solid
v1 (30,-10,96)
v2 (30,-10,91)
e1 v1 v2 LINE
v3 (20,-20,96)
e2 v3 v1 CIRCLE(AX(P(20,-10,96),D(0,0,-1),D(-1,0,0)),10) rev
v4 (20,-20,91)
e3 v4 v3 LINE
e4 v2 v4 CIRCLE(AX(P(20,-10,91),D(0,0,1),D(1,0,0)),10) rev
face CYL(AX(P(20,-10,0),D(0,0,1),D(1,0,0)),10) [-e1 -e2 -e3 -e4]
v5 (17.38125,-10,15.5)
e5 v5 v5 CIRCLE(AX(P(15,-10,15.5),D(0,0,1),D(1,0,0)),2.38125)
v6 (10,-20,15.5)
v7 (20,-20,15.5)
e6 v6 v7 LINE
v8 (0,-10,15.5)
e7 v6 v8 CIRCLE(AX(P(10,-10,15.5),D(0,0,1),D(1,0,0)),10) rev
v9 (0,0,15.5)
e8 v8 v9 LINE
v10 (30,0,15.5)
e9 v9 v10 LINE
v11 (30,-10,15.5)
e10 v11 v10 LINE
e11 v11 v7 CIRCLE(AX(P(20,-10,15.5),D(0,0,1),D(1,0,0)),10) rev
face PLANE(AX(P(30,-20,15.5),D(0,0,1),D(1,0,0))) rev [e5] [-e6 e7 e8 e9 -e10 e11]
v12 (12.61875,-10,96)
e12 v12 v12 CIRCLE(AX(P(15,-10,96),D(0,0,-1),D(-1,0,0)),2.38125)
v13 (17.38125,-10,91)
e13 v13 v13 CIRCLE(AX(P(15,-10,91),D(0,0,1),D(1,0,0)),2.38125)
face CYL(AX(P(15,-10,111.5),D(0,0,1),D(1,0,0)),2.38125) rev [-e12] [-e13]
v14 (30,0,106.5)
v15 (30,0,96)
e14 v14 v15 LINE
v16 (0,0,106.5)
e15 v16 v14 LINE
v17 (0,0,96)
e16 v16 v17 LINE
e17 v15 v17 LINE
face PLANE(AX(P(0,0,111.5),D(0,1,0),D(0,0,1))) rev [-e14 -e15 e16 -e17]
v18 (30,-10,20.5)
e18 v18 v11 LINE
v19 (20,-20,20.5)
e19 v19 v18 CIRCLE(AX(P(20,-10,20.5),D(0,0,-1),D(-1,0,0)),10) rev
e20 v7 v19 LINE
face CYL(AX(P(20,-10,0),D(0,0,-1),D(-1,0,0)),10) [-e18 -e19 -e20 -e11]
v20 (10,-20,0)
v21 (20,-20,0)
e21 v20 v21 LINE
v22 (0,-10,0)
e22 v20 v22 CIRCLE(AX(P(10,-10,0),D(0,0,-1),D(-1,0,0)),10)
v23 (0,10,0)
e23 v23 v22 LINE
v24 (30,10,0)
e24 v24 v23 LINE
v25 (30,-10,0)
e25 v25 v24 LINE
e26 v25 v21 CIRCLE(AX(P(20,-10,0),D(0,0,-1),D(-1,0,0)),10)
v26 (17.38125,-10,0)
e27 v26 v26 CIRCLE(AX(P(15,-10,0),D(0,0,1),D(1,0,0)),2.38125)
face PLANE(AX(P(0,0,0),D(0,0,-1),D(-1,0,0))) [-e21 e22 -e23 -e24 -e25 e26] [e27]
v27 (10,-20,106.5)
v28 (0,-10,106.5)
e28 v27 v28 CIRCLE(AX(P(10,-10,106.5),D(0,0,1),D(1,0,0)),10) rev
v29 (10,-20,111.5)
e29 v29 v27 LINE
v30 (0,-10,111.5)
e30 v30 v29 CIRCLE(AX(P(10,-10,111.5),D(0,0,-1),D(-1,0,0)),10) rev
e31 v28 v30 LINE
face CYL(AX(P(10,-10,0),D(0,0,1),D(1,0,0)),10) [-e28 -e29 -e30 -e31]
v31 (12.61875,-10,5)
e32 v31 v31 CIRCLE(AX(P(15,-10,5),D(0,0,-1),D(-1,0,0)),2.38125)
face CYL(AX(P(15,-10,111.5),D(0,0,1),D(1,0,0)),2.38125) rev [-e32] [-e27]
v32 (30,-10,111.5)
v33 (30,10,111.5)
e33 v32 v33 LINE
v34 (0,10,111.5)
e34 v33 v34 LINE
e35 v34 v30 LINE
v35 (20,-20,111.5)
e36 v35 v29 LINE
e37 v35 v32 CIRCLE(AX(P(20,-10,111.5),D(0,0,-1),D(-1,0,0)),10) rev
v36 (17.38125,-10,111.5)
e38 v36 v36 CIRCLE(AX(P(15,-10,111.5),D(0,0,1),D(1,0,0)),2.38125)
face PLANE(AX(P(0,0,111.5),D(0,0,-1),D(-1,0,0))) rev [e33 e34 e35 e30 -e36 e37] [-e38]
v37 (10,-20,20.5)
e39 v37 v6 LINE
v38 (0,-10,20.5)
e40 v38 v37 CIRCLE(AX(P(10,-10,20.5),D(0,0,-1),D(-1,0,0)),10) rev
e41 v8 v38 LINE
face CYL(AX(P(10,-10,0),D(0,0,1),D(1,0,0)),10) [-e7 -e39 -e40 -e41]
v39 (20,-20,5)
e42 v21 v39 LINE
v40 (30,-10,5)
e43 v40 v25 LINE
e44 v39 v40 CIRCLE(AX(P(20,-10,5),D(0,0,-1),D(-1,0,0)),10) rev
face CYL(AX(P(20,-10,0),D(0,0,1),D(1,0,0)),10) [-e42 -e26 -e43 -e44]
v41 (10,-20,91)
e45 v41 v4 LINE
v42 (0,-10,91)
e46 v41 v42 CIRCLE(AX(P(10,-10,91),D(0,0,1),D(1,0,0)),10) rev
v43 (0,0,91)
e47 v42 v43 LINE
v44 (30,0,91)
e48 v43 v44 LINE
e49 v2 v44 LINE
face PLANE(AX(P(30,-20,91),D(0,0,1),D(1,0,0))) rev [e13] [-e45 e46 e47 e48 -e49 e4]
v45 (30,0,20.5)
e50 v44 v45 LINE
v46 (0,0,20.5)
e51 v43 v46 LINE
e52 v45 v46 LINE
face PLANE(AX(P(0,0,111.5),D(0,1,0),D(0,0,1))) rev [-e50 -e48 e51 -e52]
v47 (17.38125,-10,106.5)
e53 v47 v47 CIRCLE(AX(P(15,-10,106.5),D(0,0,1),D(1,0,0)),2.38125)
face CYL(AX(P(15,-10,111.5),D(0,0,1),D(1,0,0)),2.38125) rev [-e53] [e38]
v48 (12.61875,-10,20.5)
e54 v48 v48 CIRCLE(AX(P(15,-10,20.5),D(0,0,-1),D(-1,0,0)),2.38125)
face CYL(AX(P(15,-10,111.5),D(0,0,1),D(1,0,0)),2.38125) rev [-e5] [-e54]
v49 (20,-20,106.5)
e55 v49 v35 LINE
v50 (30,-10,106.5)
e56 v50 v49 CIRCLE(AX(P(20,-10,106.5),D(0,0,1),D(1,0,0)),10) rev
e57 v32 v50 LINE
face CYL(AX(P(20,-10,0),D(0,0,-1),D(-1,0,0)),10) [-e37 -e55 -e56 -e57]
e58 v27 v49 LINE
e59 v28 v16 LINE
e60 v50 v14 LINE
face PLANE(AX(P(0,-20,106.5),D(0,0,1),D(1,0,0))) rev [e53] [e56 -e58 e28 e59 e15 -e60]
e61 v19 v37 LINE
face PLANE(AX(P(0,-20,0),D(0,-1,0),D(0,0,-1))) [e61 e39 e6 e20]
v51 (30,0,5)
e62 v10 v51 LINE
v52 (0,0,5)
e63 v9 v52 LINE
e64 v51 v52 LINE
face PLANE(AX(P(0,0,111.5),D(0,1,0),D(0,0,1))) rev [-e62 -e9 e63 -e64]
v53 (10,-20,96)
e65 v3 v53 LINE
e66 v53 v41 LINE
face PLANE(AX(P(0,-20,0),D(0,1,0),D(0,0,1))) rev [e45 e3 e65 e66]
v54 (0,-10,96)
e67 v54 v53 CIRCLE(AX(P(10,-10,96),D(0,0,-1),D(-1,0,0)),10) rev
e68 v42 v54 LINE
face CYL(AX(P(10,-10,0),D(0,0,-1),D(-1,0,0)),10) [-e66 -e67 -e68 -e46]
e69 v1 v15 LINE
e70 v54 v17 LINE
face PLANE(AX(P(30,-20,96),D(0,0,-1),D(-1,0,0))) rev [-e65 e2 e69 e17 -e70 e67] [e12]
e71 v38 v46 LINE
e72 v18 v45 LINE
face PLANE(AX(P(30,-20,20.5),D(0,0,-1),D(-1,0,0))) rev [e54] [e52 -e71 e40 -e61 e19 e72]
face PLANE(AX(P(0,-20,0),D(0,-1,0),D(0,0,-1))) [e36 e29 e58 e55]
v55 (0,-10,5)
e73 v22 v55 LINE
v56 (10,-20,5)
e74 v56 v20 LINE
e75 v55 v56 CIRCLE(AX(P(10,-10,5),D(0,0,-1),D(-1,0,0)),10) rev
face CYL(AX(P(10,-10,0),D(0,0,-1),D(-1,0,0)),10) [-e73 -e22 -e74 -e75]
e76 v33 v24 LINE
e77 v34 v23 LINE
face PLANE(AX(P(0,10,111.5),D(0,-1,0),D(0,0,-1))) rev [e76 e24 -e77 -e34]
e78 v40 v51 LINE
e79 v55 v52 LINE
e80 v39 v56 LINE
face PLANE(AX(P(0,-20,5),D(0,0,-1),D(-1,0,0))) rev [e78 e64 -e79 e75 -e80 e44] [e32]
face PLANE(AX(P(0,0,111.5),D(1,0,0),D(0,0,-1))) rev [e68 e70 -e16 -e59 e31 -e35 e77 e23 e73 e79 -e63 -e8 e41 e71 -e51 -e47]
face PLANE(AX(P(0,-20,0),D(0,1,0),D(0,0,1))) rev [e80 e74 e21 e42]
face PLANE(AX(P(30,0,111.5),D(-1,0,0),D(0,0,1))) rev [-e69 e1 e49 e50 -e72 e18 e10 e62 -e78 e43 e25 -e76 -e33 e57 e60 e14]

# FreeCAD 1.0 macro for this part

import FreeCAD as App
import Part
import Sketcher


def edges_at(feature, points):
    """Names of the edges that pass closest to the given points."""
    edges = feature.Shape.Edges
    near = lambda p: min(range(len(edges)), key=lambda i: edges[i].distToShape(Part.Vertex(*p))[0])
    return sorted({f"Edge{near(p) + 1}" for p in points})


def add_polygon(sketch, points):
    """Adds a closed chain of lines whose ends are joined by coincident constraints."""
    first, n = sketch.GeometryCount, len(points)
    for a, b in zip(points, points[1:] + points[:1]):
        sketch.addGeometry(Part.LineSegment(App.Vector(*a, 0), App.Vector(*b, 0)), False)
    for i in range(n):
        sketch.addConstraint(Sketcher.Constraint("Coincident", first + i, 2, first + (i + 1) % n, 1))

doc = App.newDocument("Part")
params = doc.addObject("Spreadsheet::Sheet", "Params")
for row, (alias, value) in enumerate([
    ("sketch1_width", "30 mm"),
    ("sketch1_height", "10 mm"),
    ("pad1_length", "111.5 mm"),
    ("sketch2_width", "30 mm"),
    ("sketch2_height", "5 mm"),
    ("pad2_length", "20 mm"),
    ("hole_diameter", "4.7625 mm"),
    ("fillet_radius", "10 mm"),
], start=1):
    params.set(f"A{row}", alias)
    params.set(f"B{row}", "=" + value)
    params.setAlias(f"B{row}", alias)

body = doc.addObject("PartDesign::Body", "Body")

# Sketch on XY plane
sketch1 = doc.addObject("Sketcher::SketchObject", "Sketch")
body.addObject(sketch1)
sketch1.AttachmentSupport = (doc.XY_Plane, [""])
sketch1.MapMode = "FlatFace"
add_polygon(sketch1, [(0, 10), (0, 0), (30, 0), (30, 10)])  # lines 0-3
sketch1.addConstraint([
    Sketcher.Constraint("Vertical", 0),
    Sketcher.Constraint("Horizontal", 1),
    Sketcher.Constraint("Vertical", 2),
    Sketcher.Constraint("Horizontal", 3),
    Sketcher.Constraint("Coincident", 0, 2, -1, 1),
    Sketcher.Constraint("DistanceX", 1, 1, 1, 2, 30.0),
    Sketcher.Constraint("DistanceY", 0, 2, 0, 1, 10.0),
])
sketch1.setExpression("Constraints[9]", "Params.sketch1_width")
sketch1.setExpression("Constraints[10]", "Params.sketch1_height")
pad1 = doc.addObject("PartDesign::Pad", "Pad")
body.addObject(pad1)
pad1.Profile = sketch1
pad1.setExpression("Length", "Params.pad1_length")

# Sketch on XZ plane
sketch2 = doc.addObject("Sketcher::SketchObject", "Sketch001")
body.addObject(sketch2)
sketch2.AttachmentSupport = (doc.XZ_Plane, [""])
sketch2.MapMode = "FlatFace"
add_polygon(sketch2, [(0, 5), (0, 0), (30, 0), (30, 5)])  # lines 0-3
add_polygon(sketch2, [(0, 20), (0, 16), (30, 16), (30, 20)])  # lines 4-7
add_polygon(sketch2, [(0, 112), (0, 106), (30, 106), (30, 112)])  # lines 8-11
add_polygon(sketch2, [(0, 96), (0, 91), (30, 91), (30, 96)])  # lines 12-15
sketch2.addConstraint([
    Sketcher.Constraint("Vertical", 0),
    Sketcher.Constraint("Horizontal", 1),
    Sketcher.Constraint("Vertical", 2),
    Sketcher.Constraint("Horizontal", 3),
    Sketcher.Constraint("Vertical", 4),
    Sketcher.Constraint("Horizontal", 5),
    Sketcher.Constraint("Vertical", 6),
    Sketcher.Constraint("Horizontal", 7),
    Sketcher.Constraint("Vertical", 8),
    Sketcher.Constraint("Horizontal", 9),
    Sketcher.Constraint("Vertical", 10),
    Sketcher.Constraint("Horizontal", 11),
    Sketcher.Constraint("Vertical", 12),
    Sketcher.Constraint("Horizontal", 13),
    Sketcher.Constraint("Vertical", 14),
    Sketcher.Constraint("Horizontal", 15),
    Sketcher.Constraint("Coincident", 0, 2, -1, 1),
    Sketcher.Constraint("PointOnObject", 4, 2, -2),
    Sketcher.Constraint("PointOnObject", 8, 2, -2),
    Sketcher.Constraint("PointOnObject", 12, 2, -2),
    Sketcher.Constraint("Vertical", 2, 2, 5, 2),
    Sketcher.Constraint("Vertical", 6, 2, 9, 2),
    Sketcher.Constraint("Vertical", 10, 2, 13, 2),
    Sketcher.Constraint("Equal", 2, 4),
    Sketcher.Constraint("Equal", 6, 8),
    Sketcher.Constraint("Equal", 10, 12),
    Sketcher.Constraint("DistanceX", 1, 1, 1, 2, 30.0),
    Sketcher.Constraint("DistanceY", 0, 2, 0, 1, 5.0),
    Sketcher.Constraint("DistanceY", -1, 1, 12, 2, 91.0),
    Sketcher.Constraint("DistanceY", 7, 2, 8, 2, 86.0),
    Sketcher.Constraint("DistanceY", -1, 1, 4, 2, 15.5),
])
sketch2.setExpression("Constraints[42]", "Params.sketch2_width")
sketch2.setExpression("Constraints[43]", "Params.sketch2_height")
pad2 = doc.addObject("PartDesign::Pad", "Pad001")
body.addObject(pad2)
pad2.Profile = sketch2
pad2.setExpression("Length", "Params.pad2_length")

# Sketch on XY plane
sketch3 = doc.addObject("Sketcher::SketchObject", "Sketch002")
body.addObject(sketch3)
sketch3.AttachmentSupport = (doc.XY_Plane, [""])
sketch3.MapMode = "FlatFace"
sketch3.AttachmentOffset = App.Placement(App.Vector(0, 0, 111.5), App.Rotation())
sketch3.addGeometry(Part.Circle(App.Vector(15, -10, 0), App.Vector(0, 0, 1), 2.4), False)
sketch3.addConstraint([
    Sketcher.Constraint("DistanceX", -1, 1, 0, 3, 15.0),
    Sketcher.Constraint("DistanceY", 0, 3, -1, 1, 10.0),
    Sketcher.Constraint("Diameter", 0, 4.7625),
])
doc.recompute()
hole = doc.addObject("PartDesign::Hole", "Hole")
body.addObject(hole)
hole.Profile = sketch3
hole.ThreadType = "None"
hole.setExpression("Diameter", "Params.hole_diameter")
hole.DepthType = "ThroughAll"
doc.recompute()

fillet = doc.addObject("PartDesign::Fillet", "Fillet")
body.addObject(fillet)
fillet.Base = (hole, edges_at(hole, [
    (0, -20, 2.5),
    (30, -20, 2.5),
    (30, -20, 18),
    (0, -20, 18),
    (0, -20, 109),
    (30, -20, 109),
    (30, -20, 93.5),
    (0, -20, 93.5),
]))
fillet.setExpression("Radius", "Params.fillet_radius")

doc.recompute()
